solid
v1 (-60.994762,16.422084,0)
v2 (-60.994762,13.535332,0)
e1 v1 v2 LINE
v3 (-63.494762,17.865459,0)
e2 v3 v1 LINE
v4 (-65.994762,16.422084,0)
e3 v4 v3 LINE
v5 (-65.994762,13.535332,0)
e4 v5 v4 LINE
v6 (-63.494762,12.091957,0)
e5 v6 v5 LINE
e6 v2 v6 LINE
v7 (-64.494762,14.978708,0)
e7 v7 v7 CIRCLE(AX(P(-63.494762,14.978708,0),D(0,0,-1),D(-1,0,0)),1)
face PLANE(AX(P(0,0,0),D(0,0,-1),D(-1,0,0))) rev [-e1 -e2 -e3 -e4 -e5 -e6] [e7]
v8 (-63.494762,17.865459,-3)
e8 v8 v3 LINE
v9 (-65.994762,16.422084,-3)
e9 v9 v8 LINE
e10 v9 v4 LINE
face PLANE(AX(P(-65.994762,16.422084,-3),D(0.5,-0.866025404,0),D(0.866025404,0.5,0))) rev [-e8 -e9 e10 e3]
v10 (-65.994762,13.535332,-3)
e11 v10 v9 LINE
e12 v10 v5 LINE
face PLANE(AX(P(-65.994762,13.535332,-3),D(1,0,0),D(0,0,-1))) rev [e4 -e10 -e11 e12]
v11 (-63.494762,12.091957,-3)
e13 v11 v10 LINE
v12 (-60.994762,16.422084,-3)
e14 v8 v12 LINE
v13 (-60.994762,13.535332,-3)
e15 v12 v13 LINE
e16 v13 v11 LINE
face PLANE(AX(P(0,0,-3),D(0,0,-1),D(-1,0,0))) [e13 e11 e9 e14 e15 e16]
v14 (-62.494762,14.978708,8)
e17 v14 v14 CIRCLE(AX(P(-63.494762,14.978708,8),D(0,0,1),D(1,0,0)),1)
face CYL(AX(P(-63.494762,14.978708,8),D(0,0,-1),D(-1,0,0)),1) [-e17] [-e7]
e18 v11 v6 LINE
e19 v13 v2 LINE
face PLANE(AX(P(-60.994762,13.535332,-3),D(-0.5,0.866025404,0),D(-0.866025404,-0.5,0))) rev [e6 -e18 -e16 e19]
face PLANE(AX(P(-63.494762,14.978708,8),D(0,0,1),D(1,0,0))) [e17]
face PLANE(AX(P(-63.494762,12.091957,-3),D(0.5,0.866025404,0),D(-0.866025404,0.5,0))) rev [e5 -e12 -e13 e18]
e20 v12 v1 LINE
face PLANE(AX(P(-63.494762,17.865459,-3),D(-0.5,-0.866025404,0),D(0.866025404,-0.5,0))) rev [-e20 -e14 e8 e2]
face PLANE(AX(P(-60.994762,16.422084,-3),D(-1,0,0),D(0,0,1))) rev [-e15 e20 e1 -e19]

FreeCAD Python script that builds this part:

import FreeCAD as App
import Part
import Sketcher
from FreeCAD import Vector
Q = App.Units.Quantity

doc = App.newDocument("Part")
body = doc.addObject("PartDesign::Body", "Body")

# Sketch on XY plane
sketch1 = doc.addObject("Sketcher::SketchObject", "Sketch")
body.addObject(sketch1)
sketch1.AttachmentSupport = (doc.XY_Plane, [""])
sketch1.MapMode = "FlatFace"
sketch1.addGeometry(Part.Circle(Vector(-63.5, 15, 0), Vector(0, 0, 1), 1), False)
sketch1.addConstraint([
    Sketcher.Constraint("Diameter", 0, 2.0),
    Sketcher.Constraint("DistanceX", 0, 3, -1, 1, 63.494762),
    Sketcher.Constraint("DistanceY", -1, 1, 0, 3, 14.978708),
])
pad1 = doc.addObject("PartDesign::Pad", "Pad")
body.addObject(pad1)
pad1.Profile = sketch1
pad1.Length = 8

# Sketch on XY plane
sketch2 = doc.addObject("Sketcher::SketchObject", "Sketch001")
body.addObject(sketch2)
sketch2.AttachmentSupport = (doc.XY_Plane, [""])
sketch2.MapMode = "FlatFace"
sketch2.addGeometry([
    Part.LineSegment(Vector(-63.5, 12.1, 0), Vector(-66, 13.5, 0)),  # 0
    Part.LineSegment(Vector(-66, 13.5, 0), Vector(-66, 16.4, 0)),  # 1
    Part.LineSegment(Vector(-66, 16.4, 0), Vector(-63.5, 17.9, 0)),  # 2
    Part.LineSegment(Vector(-63.5, 17.9, 0), Vector(-61, 16.4, 0)),  # 3
    Part.LineSegment(Vector(-61, 16.4, 0), Vector(-61, 13.5, 0)),  # 4
    Part.LineSegment(Vector(-61, 13.5, 0), Vector(-63.5, 12.1, 0)),  # 5
], False)
sketch2.addConstraint([
    Sketcher.Constraint("Coincident", 0, 2, 1, 1),
    Sketcher.Constraint("Coincident", 1, 2, 2, 1),
    Sketcher.Constraint("Coincident", 2, 2, 3, 1),
    Sketcher.Constraint("Coincident", 3, 2, 4, 1),
    Sketcher.Constraint("Coincident", 4, 2, 5, 1),
    Sketcher.Constraint("Coincident", 5, 2, 0, 1),
    Sketcher.Constraint("Vertical", 1),
    Sketcher.Constraint("Vertical", 4),
    Sketcher.Constraint("Parallel", 0, 3),
    Sketcher.Constraint("Parallel", 2, 5),
    Sketcher.Constraint("Horizontal", 1, 2, 3, 2),
    Sketcher.Constraint("Horizontal", 0, 2, 4, 2),
    Sketcher.Constraint("Vertical", 2, 2, 5, 2),
    Sketcher.Constraint("Angle", 0, Q("150 deg")),
    Sketcher.Constraint("DistanceX", 1, 2, 3, 2, 5.0),
    Sketcher.Constraint("DistanceY", 1, 1, 1, 2, 2.886751),
    Sketcher.Constraint("DistanceX", 0, 2, -1, 1, 65.994762),
    Sketcher.Constraint("DistanceY", -1, 1, 2, 2, 17.865459),
])
pad2 = doc.addObject("PartDesign::Pad", "Pad001")
body.addObject(pad2)
pad2.Profile = sketch2
pad2.Length = 3
pad2.Reversed = True

doc.recompute()
